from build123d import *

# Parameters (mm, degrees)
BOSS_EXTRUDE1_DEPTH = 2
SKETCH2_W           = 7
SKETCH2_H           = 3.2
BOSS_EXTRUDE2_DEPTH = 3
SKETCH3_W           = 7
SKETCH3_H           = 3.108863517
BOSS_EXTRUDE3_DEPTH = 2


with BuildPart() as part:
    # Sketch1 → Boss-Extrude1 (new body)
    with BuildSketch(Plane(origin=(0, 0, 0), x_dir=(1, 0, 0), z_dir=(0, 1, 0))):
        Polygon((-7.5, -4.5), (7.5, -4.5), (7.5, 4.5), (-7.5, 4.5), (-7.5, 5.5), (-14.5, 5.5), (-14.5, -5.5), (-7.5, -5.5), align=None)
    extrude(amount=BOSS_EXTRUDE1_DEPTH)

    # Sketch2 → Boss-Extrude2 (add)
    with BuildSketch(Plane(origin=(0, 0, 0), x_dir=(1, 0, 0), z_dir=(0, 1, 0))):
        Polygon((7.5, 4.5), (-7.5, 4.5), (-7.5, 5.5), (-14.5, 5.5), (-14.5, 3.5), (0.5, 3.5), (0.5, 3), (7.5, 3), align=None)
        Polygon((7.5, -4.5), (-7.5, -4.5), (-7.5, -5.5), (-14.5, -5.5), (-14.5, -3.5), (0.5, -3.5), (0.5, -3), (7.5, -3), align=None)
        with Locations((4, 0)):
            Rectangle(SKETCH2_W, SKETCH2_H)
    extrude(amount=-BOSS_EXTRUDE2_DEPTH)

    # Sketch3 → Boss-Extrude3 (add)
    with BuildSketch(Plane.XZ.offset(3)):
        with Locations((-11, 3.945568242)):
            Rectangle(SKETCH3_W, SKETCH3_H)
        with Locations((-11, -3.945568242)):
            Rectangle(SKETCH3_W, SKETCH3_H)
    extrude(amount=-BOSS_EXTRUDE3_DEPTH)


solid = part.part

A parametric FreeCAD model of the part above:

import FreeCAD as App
import Part
import Sketcher
from FreeCAD import Vector

doc = App.newDocument("Part")
body = doc.addObject("PartDesign::Body", "Body")

# Sketch on XZ plane
sketch1 = body.newObject("Sketcher::SketchObject", "Sketch")
sketch1.AttachmentSupport = (doc.getObject("XZ_Plane"), [""])
sketch1.MapMode = "FlatFace"
sketch1.addGeometry([
    Part.LineSegment(Vector(-7.5, 4.5, 0), Vector(7.5, 4.5, 0)),  # 0
    Part.LineSegment(Vector(7.5, 4.5, 0), Vector(7.5, -4.5, 0)),  # 1
    Part.LineSegment(Vector(7.5, -4.5, 0), Vector(-7.5, -4.5, 0)),  # 2
    Part.LineSegment(Vector(-7.5, -4.5, 0), Vector(-7.5, -5.5, 0)),  # 3
    Part.LineSegment(Vector(-7.5, -5.5, 0), Vector(-14.5, -5.5, 0)),  # 4
    Part.LineSegment(Vector(-14.5, -5.5, 0), Vector(-14.5, 5.5, 0)),  # 5
    Part.LineSegment(Vector(-14.5, 5.5, 0), Vector(-7.5, 5.5, 0)),  # 6
    Part.LineSegment(Vector(-7.5, 5.5, 0), Vector(-7.5, 4.5, 0)),  # 7
], False)
sketch1.addConstraint([
    Sketcher.Constraint("Coincident", 0, 2, 1, 1),
    Sketcher.Constraint("Coincident", 1, 2, 2, 1),
    Sketcher.Constraint("Coincident", 2, 2, 3, 1),
    Sketcher.Constraint("Coincident", 3, 2, 4, 1),
    Sketcher.Constraint("Coincident", 4, 2, 5, 1),
    Sketcher.Constraint("Coincident", 5, 2, 6, 1),
    Sketcher.Constraint("Coincident", 6, 2, 7, 1),
    Sketcher.Constraint("Coincident", 7, 2, 0, 1),
    Sketcher.Constraint("Horizontal", 0),
    Sketcher.Constraint("Vertical", 1),
    Sketcher.Constraint("Horizontal", 2),
    Sketcher.Constraint("Vertical", 3),
    Sketcher.Constraint("Horizontal", 4),
    Sketcher.Constraint("Vertical", 5),
    Sketcher.Constraint("Horizontal", 6),
    Sketcher.Constraint("Vertical", 7),
    Sketcher.Constraint("Symmetric", 0, 2, 2, 2, -1, 1),
    Sketcher.Constraint("Symmetric", 3, 2, 6, 2, -1),
    Sketcher.Constraint("DistanceX", 0, 1, 0, 2, 15.0),
    Sketcher.Constraint("DistanceX", 4, 2, 4, 1, 7.0),
    Sketcher.Constraint("DistanceY", 1, 2, 1, 1, 9.0),
    Sketcher.Constraint("DistanceY", 3, 2, 3, 1, 1.0),
])
pad1 = body.newObject("PartDesign::Pad", "Pad")
pad1.Profile = sketch1
pad1.Length = 2
pad1.Reversed = True

# Sketch on XZ plane
sketch2 = body.newObject("Sketcher::SketchObject", "Sketch001")
sketch2.AttachmentSupport = (doc.getObject("XZ_Plane"), [""])
sketch2.MapMode = "FlatFace"
sketch2.addGeometry([
    Part.LineSegment(Vector(7.5, -4.5, 0), Vector(-7.5, -4.5, 0)),  # 0
    Part.LineSegment(Vector(-7.5, -4.5, 0), Vector(-7.5, -5.5, 0)),  # 1
    Part.LineSegment(Vector(-7.5, -5.5, 0), Vector(-14.5, -5.5, 0)),  # 2
    Part.LineSegment(Vector(-14.5, -5.5, 0), Vector(-14.5, -3.5, 0)),  # 3
    Part.LineSegment(Vector(-14.5, -3.5, 0), Vector(0.5, -3.5, 0)),  # 4
    Part.LineSegment(Vector(0.5, -3.5, 0), Vector(0.5, -3, 0)),  # 5
    Part.LineSegment(Vector(0.5, -3, 0), Vector(7.5, -3, 0)),  # 6
    Part.LineSegment(Vector(7.5, -3, 0), Vector(7.5, -4.5, 0)),  # 7
    Part.LineSegment(Vector(-7.5, 4.5, 0), Vector(7.5, 4.5, 0)),  # 8
    Part.LineSegment(Vector(7.5, 4.5, 0), Vector(7.5, 3, 0)),  # 9
    Part.LineSegment(Vector(7.5, 3, 0), Vector(0.5, 3, 0)),  # 10
    Part.LineSegment(Vector(0.5, 3, 0), Vector(0.5, 3.5, 0)),  # 11
    Part.LineSegment(Vector(0.5, 3.5, 0), Vector(-14.5, 3.5, 0)),  # 12
    Part.LineSegment(Vector(-14.5, 3.5, 0), Vector(-14.5, 5.5, 0)),  # 13
    Part.LineSegment(Vector(-14.5, 5.5, 0), Vector(-7.5, 5.5, 0)),  # 14
    Part.LineSegment(Vector(-7.5, 5.5, 0), Vector(-7.5, 4.5, 0)),  # 15
    Part.LineSegment(Vector(0.5, -1.6, 0), Vector(0.5, 1.6, 0)),  # 16
    Part.LineSegment(Vector(0.5, 1.6, 0), Vector(7.5, 1.6, 0)),  # 17
    Part.LineSegment(Vector(7.5, 1.6, 0), Vector(7.5, -1.6, 0)),  # 18
    Part.LineSegment(Vector(7.5, -1.6, 0), Vector(0.5, -1.6, 0)),  # 19
], False)
sketch2.addConstraint([
    Sketcher.Constraint("Coincident", 0, 2, 1, 1),
    Sketcher.Constraint("Coincident", 1, 2, 2, 1),
    Sketcher.Constraint("Coincident", 2, 2, 3, 1),
    Sketcher.Constraint("Coincident", 3, 2, 4, 1),
    Sketcher.Constraint("Coincident", 4, 2, 5, 1),
    Sketcher.Constraint("Coincident", 5, 2, 6, 1),
    Sketcher.Constraint("Coincident", 6, 2, 7, 1),
    Sketcher.Constraint("Coincident", 7, 2, 0, 1),
    Sketcher.Constraint("Coincident", 8, 2, 9, 1),
    Sketcher.Constraint("Coincident", 9, 2, 10, 1),
    Sketcher.Constraint("Coincident", 10, 2, 11, 1),
    Sketcher.Constraint("Coincident", 11, 2, 12, 1),
    Sketcher.Constraint("Coincident", 12, 2, 13, 1),
    Sketcher.Constraint("Coincident", 13, 2, 14, 1),
    Sketcher.Constraint("Coincident", 14, 2, 15, 1),
    Sketcher.Constraint("Coincident", 15, 2, 8, 1),
    Sketcher.Constraint("Coincident", 16, 2, 17, 1),
    Sketcher.Constraint("Coincident", 17, 2, 18, 1),
    Sketcher.Constraint("Coincident", 18, 2, 19, 1),
    Sketcher.Constraint("Coincident", 19, 2, 16, 1),
    Sketcher.Constraint("Horizontal", 0),
    Sketcher.Constraint("Vertical", 1),
    Sketcher.Constraint("Horizontal", 2),
    Sketcher.Constraint("Vertical", 3),
    Sketcher.Constraint("Horizontal", 4),
    Sketcher.Constraint("Vertical", 5),
    Sketcher.Constraint("Horizontal", 6),
    Sketcher.Constraint("Vertical", 7),
    Sketcher.Constraint("Horizontal", 8),
    Sketcher.Constraint("Vertical", 9),
    Sketcher.Constraint("Horizontal", 10),
    Sketcher.Constraint("Vertical", 11),
    Sketcher.Constraint("Horizontal", 12),
    Sketcher.Constraint("Vertical", 13),
    Sketcher.Constraint("Horizontal", 14),
    Sketcher.Constraint("Vertical", 15),
    Sketcher.Constraint("Vertical", 16),
    Sketcher.Constraint("Horizontal", 17),
    Sketcher.Constraint("Vertical", 18),
    Sketcher.Constraint("Horizontal", 19),
    Sketcher.Constraint("Symmetric", 0, 2, 8, 2, -1, 1),
    Sketcher.Constraint("Symmetric", 6, 2, 9, 2, -1),
    Sketcher.Constraint("Symmetric", 4, 2, 11, 2, -1),
    Sketcher.Constraint("Symmetric", 2, 2, 13, 2, -1),
    Sketcher.Constraint("Vertical", 1, 2, 14, 2),
    Sketcher.Constraint("Vertical", 11, 2, 16, 2),
    Sketcher.Constraint("Vertical", 9, 2, 17, 2),
    Sketcher.Constraint("Equal", 0, 4),
    Sketcher.Constraint("DistanceX", 0, 2, 0, 1, 15.0),
    Sketcher.Constraint("DistanceX", 2, 2, 2, 1, 7.0),
    Sketcher.Constraint("DistanceY", 1, 2, 1, 1, 1.0),
    Sketcher.Constraint("DistanceY", 3, 1, 3, 2, 2.0),
    Sketcher.Constraint("DistanceY", 5, 1, 5, 2, 0.5),
    Sketcher.Constraint("DistanceY", 16, 1, 16, 2, 3.2),
    Sketcher.Constraint("DistanceY", 5, 2, -1, 1, 3.0),
    Sketcher.Constraint("DistanceY", -1, 1, 16, 2, 1.6),
])
pad2 = body.newObject("PartDesign::Pad", "Pad001")
pad2.Profile = sketch2
pad2.Length = 3

# Sketch on XZ plane
sketch3 = body.newObject("Sketcher::SketchObject", "Sketch002")
sketch3.AttachmentSupport = (doc.getObject("XZ_Plane"), [""])
sketch3.MapMode = "FlatFace"
sketch3.AttachmentOffset = App.Placement(Vector(0, 0, 3), App.Rotation())
sketch3.addGeometry([
    Part.LineSegment(Vector(-14.5, 5.5, 0), Vector(-14.5, 2.4, 0)),  # 0
    Part.LineSegment(Vector(-14.5, 2.4, 0), Vector(-7.5, 2.4, 0)),  # 1
    Part.LineSegment(Vector(-7.5, 2.4, 0), Vector(-7.5, 5.5, 0)),  # 2
    Part.LineSegment(Vector(-7.5, 5.5, 0), Vector(-14.5, 5.5, 0)),  # 3
    Part.LineSegment(Vector(-14.5, -2.4, 0), Vector(-14.5, -5.5, 0)),  # 4
    Part.LineSegment(Vector(-14.5, -5.5, 0), Vector(-7.5, -5.5, 0)),  # 5
    Part.LineSegment(Vector(-7.5, -5.5, 0), Vector(-7.5, -2.4, 0)),  # 6
    Part.LineSegment(Vector(-7.5, -2.4, 0), Vector(-14.5, -2.4, 0)),  # 7
], False)
sketch3.addConstraint([
    Sketcher.Constraint("Coincident", 0, 2, 1, 1),
    Sketcher.Constraint("Coincident", 1, 2, 2, 1),
    Sketcher.Constraint("Coincident", 2, 2, 3, 1),
    Sketcher.Constraint("Coincident", 3, 2, 0, 1),
    Sketcher.Constraint("Coincident", 4, 2, 5, 1),
    Sketcher.Constraint("Coincident", 5, 2, 6, 1),
    Sketcher.Constraint("Coincident", 6, 2, 7, 1),
    Sketcher.Constraint("Coincident", 7, 2, 4, 1),
    Sketcher.Constraint("Vertical", 0),
    Sketcher.Constraint("Horizontal", 1),
    Sketcher.Constraint("Vertical", 2),
    Sketcher.Constraint("Horizontal", 3),
    Sketcher.Constraint("Vertical", 4),
    Sketcher.Constraint("Horizontal", 5),
    Sketcher.Constraint("Vertical", 6),
    Sketcher.Constraint("Horizontal", 7),
    Sketcher.Constraint("Symmetric", 3, 2, 4, 2, -1),
    Sketcher.Constraint("Symmetric", 1, 2, 6, 2, -1),
    Sketcher.Constraint("DistanceX", 1, 1, 1, 2, 7.0),
    Sketcher.Constraint("DistanceY", 4, 2, 3, 2, 11.0),
    Sketcher.Constraint("DistanceX", 0, 2, -1, 1, 14.5),
    Sketcher.Constraint("DistanceY", 0, 2, 0, 1, 3.108864),
])
pad3 = body.newObject("PartDesign::Pad", "Pad002")
pad3.Profile = sketch3
pad3.Length = 2
pad3.Reversed = True

doc.recompute()
